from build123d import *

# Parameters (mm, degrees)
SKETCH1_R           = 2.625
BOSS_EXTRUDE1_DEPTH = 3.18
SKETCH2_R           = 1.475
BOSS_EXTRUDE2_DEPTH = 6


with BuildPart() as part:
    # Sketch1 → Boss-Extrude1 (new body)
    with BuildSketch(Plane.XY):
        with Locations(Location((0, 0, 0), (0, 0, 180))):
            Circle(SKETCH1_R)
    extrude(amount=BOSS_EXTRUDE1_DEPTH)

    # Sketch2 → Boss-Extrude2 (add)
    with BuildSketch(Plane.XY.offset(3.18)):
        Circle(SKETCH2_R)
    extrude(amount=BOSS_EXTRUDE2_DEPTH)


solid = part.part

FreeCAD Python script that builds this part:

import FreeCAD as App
import Part
import Sketcher

doc = App.newDocument("Part")
body = doc.addObject("PartDesign::Body", "Body")

# Sketch on XY plane
sketch1 = doc.addObject("Sketcher::SketchObject", "Sketch")
body.addObject(sketch1)
sketch1.AttachmentSupport = (doc.XY_Plane, [""])
sketch1.MapMode = "FlatFace"
sketch1.addGeometry(Part.Circle(App.Vector(0, 0, 0), App.Vector(0, 0, 1), 2.6), False)
sketch1.addConstraint(Sketcher.Constraint("Coincident", 0, 3, -1, 1))
sketch1.addConstraint(Sketcher.Constraint("Diameter", 0, 5.25))
pad1 = doc.addObject("PartDesign::Pad", "Pad")
body.addObject(pad1)
pad1.Profile = sketch1
pad1.Length = 3.18

# Sketch on XY plane
sketch2 = doc.addObject("Sketcher::SketchObject", "Sketch001")
body.addObject(sketch2)
sketch2.AttachmentSupport = (doc.XY_Plane, [""])
sketch2.MapMode = "FlatFace"
sketch2.AttachmentOffset = App.Placement(App.Vector(0, 0, 3.18), App.Rotation())
sketch2.addGeometry(Part.Circle(App.Vector(0, 0, 0), App.Vector(0, 0, 1), 1.5), False)
sketch2.addConstraint(Sketcher.Constraint("Coincident", 0, 3, -1, 1))
sketch2.addConstraint(Sketcher.Constraint("Diameter", 0, 2.95))
pad2 = doc.addObject("PartDesign::Pad", "Pad001")
body.addObject(pad2)
pad2.Profile = sketch2
pad2.Length = 6

doc.recompute()
